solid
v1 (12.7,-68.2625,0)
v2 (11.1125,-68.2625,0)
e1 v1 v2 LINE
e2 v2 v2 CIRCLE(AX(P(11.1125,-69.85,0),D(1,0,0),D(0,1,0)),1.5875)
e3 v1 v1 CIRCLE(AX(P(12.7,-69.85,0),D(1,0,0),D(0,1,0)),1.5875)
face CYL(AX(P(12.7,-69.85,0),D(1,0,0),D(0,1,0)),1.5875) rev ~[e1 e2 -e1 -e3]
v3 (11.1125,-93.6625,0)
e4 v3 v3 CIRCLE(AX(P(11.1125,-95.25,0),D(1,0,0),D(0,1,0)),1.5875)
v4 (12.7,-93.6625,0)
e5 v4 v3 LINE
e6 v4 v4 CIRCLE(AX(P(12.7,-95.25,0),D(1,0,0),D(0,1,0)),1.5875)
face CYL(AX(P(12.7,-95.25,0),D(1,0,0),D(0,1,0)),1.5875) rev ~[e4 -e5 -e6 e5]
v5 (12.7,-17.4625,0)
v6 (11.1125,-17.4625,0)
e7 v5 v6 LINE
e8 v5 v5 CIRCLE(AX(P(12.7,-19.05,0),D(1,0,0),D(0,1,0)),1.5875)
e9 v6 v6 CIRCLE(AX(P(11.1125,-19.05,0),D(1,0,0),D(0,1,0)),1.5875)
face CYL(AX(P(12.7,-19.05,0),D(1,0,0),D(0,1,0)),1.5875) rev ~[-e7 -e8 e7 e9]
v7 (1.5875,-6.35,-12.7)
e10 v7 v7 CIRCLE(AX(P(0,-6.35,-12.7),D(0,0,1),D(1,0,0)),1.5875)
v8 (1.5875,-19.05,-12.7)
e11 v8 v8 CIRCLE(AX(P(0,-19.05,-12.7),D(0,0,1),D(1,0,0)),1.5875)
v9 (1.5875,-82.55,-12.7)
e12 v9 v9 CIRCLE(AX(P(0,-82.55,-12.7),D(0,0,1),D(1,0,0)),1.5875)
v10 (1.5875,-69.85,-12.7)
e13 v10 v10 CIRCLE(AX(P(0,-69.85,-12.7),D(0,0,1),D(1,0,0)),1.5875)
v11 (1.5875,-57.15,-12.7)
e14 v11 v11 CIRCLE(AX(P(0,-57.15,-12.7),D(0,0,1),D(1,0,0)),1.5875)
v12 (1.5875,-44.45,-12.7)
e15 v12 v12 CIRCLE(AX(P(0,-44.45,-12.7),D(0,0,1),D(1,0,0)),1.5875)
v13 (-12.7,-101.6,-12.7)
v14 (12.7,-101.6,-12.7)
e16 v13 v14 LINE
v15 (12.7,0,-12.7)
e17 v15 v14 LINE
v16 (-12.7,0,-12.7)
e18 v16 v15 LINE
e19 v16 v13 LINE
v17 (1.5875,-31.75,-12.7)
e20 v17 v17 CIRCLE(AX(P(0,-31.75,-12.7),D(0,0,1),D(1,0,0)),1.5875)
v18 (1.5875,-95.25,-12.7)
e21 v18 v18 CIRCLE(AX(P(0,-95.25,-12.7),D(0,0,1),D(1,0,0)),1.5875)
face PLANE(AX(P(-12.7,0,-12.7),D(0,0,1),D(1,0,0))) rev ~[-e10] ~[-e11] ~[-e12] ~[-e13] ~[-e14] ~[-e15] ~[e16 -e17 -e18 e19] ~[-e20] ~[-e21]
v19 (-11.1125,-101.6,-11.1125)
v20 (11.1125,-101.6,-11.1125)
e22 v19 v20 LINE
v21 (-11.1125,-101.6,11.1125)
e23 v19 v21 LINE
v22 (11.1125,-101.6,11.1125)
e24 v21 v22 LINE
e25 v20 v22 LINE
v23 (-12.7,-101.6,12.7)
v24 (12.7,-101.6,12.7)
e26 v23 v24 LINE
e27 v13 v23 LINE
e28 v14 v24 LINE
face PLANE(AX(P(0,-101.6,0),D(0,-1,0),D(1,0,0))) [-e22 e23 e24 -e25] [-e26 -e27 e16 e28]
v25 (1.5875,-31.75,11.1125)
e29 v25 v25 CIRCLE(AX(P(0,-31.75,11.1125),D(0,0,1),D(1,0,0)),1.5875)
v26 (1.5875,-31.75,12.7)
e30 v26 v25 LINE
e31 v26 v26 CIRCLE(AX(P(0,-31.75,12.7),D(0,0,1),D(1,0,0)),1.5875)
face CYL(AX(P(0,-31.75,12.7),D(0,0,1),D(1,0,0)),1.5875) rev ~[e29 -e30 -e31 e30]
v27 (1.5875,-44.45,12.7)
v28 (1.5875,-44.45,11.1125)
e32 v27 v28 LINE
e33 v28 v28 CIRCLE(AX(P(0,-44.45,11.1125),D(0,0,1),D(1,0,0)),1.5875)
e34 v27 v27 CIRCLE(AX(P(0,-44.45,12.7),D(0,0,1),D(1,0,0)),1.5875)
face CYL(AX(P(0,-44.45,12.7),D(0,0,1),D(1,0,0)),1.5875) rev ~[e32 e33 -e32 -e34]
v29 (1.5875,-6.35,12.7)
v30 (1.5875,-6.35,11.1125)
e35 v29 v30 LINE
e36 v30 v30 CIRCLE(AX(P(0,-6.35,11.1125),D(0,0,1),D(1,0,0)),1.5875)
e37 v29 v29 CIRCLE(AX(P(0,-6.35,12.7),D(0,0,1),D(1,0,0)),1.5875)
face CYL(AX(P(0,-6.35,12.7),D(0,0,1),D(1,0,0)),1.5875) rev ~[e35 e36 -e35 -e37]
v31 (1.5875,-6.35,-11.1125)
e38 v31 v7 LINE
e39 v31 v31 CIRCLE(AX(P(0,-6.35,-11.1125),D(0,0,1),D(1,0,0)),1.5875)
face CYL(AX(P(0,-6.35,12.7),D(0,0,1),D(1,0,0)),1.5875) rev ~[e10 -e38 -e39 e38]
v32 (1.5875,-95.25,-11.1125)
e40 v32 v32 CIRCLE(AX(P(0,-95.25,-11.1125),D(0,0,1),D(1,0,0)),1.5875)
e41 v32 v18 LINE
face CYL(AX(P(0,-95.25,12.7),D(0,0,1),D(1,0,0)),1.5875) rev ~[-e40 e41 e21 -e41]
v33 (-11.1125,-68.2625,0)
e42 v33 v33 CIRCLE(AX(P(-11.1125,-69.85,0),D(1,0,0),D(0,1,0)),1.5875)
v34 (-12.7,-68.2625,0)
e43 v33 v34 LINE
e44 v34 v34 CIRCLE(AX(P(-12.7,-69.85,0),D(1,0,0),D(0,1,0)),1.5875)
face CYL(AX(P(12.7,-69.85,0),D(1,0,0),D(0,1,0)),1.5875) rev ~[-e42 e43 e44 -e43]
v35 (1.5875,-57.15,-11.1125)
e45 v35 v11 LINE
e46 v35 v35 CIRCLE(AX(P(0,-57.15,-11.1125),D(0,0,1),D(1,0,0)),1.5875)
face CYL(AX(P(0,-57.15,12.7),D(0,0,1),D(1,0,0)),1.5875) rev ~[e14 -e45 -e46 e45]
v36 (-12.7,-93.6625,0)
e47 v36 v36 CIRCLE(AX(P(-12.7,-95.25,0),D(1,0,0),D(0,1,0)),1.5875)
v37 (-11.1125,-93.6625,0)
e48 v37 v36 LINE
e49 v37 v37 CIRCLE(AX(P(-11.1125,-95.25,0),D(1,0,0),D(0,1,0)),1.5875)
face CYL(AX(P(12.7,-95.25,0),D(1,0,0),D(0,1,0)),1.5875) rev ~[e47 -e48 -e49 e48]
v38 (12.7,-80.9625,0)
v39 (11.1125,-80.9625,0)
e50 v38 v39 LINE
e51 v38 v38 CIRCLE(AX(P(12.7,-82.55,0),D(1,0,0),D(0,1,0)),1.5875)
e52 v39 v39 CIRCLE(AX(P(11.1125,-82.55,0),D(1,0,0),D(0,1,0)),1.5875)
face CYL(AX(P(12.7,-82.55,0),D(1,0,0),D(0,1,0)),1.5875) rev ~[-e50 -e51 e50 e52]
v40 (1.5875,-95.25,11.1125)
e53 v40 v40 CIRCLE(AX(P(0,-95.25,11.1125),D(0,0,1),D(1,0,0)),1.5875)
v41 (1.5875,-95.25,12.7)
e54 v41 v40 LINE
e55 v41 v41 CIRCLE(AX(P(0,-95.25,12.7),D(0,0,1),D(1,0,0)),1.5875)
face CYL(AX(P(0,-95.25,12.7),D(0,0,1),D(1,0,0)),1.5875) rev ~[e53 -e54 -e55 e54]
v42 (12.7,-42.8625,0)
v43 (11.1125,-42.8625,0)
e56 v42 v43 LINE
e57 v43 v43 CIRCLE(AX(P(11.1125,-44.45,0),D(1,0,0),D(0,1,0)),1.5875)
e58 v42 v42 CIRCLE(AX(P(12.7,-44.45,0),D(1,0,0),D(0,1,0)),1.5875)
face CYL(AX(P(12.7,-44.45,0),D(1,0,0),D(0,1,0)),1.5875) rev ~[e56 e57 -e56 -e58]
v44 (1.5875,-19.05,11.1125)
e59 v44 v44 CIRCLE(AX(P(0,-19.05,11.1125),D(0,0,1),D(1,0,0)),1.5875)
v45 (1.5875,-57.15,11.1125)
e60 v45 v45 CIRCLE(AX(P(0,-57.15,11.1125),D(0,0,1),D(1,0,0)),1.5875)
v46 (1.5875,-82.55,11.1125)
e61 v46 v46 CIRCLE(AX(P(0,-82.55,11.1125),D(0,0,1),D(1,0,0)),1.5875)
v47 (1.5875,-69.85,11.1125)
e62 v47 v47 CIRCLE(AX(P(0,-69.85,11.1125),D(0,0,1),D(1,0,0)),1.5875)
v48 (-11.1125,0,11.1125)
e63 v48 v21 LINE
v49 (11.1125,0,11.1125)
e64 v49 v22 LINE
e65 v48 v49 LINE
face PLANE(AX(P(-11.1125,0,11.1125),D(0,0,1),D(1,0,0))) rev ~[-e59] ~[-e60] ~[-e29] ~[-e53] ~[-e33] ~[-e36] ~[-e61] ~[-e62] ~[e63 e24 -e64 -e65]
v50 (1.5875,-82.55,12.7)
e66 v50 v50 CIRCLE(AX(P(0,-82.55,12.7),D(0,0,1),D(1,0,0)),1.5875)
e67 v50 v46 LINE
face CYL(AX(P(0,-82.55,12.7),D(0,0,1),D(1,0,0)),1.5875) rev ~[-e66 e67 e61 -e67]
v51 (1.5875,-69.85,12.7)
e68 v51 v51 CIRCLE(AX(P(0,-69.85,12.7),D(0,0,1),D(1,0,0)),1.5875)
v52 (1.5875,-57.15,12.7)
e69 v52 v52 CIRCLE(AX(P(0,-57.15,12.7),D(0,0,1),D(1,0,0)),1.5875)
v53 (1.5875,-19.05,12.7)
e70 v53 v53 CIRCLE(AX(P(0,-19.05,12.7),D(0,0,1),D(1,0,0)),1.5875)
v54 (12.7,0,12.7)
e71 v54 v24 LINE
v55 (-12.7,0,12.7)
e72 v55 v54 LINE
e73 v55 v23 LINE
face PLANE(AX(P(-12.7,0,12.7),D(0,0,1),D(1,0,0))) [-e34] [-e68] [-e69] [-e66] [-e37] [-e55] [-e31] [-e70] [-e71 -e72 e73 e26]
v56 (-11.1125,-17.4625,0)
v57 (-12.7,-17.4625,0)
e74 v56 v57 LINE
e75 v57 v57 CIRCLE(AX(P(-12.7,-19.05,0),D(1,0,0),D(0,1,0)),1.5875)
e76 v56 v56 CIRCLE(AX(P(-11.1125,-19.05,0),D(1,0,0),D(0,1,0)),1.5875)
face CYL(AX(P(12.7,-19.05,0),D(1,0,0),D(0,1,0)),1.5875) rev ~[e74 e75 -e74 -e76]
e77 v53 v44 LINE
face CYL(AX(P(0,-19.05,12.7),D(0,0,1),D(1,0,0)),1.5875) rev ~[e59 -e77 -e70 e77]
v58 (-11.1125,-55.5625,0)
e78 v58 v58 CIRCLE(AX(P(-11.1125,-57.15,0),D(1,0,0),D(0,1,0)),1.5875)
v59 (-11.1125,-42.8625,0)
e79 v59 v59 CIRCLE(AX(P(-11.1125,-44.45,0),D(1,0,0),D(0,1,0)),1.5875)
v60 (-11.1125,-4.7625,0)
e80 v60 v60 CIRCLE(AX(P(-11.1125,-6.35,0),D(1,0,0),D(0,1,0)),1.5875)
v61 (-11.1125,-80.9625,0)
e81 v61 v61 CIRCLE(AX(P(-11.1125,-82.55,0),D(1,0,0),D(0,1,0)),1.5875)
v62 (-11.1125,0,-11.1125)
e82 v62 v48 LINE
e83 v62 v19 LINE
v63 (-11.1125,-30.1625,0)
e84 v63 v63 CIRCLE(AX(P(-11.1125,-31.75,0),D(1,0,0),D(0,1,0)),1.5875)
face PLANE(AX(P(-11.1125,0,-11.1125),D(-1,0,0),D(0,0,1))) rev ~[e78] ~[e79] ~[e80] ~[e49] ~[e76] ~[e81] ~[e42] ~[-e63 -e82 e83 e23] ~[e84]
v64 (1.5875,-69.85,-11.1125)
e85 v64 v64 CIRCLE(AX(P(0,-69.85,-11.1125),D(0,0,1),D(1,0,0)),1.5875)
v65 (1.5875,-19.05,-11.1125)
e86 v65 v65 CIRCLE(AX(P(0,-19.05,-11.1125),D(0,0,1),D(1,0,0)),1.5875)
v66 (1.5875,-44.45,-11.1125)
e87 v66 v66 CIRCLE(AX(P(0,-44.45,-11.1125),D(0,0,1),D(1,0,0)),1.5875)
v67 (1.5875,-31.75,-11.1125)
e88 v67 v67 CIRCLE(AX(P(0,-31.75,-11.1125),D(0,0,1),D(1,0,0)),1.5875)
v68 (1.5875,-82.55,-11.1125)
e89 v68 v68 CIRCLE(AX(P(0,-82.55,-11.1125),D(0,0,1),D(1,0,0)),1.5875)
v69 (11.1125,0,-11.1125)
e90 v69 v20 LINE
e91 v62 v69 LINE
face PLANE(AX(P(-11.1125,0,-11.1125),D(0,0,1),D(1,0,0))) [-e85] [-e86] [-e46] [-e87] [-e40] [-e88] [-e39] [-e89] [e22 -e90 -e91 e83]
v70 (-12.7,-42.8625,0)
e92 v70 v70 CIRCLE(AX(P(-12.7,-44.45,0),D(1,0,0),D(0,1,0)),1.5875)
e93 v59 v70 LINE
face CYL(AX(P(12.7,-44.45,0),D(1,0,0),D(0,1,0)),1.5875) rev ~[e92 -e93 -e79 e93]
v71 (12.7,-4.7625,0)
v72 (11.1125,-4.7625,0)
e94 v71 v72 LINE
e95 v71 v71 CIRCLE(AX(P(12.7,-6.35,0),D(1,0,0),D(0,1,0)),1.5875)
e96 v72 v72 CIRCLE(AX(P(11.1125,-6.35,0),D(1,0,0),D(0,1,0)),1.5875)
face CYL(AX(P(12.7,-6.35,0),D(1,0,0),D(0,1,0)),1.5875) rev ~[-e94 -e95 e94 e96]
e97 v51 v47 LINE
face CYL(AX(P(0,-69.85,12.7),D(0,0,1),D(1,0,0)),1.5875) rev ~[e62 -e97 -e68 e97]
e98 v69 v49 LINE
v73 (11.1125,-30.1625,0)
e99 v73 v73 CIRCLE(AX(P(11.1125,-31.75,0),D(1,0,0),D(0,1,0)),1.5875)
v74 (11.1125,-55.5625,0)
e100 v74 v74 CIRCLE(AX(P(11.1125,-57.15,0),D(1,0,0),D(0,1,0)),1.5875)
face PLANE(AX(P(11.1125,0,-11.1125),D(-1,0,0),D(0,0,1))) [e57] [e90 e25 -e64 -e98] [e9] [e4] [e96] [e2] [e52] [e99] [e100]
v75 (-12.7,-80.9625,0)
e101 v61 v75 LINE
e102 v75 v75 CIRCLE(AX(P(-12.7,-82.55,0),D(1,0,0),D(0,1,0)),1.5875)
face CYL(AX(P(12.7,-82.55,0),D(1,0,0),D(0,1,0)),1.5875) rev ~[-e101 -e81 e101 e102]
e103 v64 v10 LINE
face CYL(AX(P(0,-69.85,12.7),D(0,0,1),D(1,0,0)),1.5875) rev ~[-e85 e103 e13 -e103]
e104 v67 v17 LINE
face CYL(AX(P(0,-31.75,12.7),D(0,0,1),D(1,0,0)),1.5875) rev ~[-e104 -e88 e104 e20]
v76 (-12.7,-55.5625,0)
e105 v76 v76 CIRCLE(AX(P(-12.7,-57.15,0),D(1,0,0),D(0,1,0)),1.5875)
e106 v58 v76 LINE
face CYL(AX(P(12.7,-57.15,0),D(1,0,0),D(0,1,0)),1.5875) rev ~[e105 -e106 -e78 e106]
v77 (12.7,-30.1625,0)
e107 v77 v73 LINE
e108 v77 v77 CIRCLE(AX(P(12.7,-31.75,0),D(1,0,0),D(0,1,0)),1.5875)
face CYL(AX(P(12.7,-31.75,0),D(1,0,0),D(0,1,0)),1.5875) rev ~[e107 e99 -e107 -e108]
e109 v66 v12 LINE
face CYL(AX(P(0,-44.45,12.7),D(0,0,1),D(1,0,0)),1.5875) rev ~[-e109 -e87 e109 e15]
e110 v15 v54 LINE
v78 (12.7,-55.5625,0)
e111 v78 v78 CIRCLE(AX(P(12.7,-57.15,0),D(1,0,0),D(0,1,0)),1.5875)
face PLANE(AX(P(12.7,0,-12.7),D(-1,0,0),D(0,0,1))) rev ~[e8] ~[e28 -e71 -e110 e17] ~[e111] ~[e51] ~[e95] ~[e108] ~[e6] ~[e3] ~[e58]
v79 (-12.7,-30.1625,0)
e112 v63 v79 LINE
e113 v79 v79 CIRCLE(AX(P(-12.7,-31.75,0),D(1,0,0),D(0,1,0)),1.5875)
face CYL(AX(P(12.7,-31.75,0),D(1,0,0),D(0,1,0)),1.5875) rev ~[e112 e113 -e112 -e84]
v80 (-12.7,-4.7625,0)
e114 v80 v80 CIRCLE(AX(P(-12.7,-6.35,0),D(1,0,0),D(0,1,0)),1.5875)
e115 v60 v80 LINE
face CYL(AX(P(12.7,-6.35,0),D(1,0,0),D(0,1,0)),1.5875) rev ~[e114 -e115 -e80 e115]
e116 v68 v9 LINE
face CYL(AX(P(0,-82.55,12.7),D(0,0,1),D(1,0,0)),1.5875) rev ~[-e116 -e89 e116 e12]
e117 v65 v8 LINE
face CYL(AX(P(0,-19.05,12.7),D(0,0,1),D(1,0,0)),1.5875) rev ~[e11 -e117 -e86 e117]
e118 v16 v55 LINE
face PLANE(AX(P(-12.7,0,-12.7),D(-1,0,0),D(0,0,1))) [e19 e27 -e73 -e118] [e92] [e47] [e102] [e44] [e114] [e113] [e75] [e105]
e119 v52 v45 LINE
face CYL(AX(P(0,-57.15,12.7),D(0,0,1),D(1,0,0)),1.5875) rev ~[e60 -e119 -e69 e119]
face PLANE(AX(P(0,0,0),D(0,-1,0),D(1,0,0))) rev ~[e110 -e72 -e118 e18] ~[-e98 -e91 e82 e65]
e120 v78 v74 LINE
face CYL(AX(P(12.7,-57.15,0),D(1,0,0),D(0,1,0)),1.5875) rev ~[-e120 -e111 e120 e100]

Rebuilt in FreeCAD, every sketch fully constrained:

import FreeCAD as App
import Part
import Sketcher

V = App.Vector
Q = App.Units.Quantity

doc = App.newDocument("Part")
params = doc.addObject("Spreadsheet::Sheet", "Params")
for row, (alias, value) in enumerate([
    ("sketch1_width", "1 in"),
    ("sketch1_width2", "0.875 in"),
    ("pad1_length", "4 in"),
    ("sketch2_diameter", "0.125 in"),
    ("pocket1_length", "1 in"),
    ("sketch3_diameter", "0.125 in"),
    ("pocket2_length", "1 in"),
], start=1):
    params.set(f"A{row}", alias)
    params.set(f"B{row}", "=" + value)
    params.setAlias(f"B{row}", alias)

body = doc.addObject("PartDesign::Body", "Body")

# Sketch on XZ plane
sketch1 = doc.addObject("Sketcher::SketchObject", "Sketch")
body.addObject(sketch1)
sketch1.AttachmentSupport = (doc.XZ_Plane, [""])
sketch1.MapMode = "FlatFace"
sketch1.addGeometry(Part.LineSegment(V(-12.7, 12.7, 0), V(-12.7, -12.7, 0)), False)
sketch1.addGeometry(Part.LineSegment(V(-12.7, -12.7, 0), V(12.7, -12.7, 0)), False)
sketch1.addGeometry(Part.LineSegment(V(12.7, -12.7, 0), V(12.7, 12.7, 0)), False)
sketch1.addGeometry(Part.LineSegment(V(12.7, 12.7, 0), V(-12.7, 12.7, 0)), False)
sketch1.addGeometry(Part.LineSegment(V(11.1125, -11.1125, 0), V(-11.1125, -11.1125, 0)), False)
sketch1.addGeometry(Part.LineSegment(V(-11.1125, -11.1125, 0), V(-11.1125, 11.1125, 0)), False)
sketch1.addGeometry(Part.LineSegment(V(-11.1125, 11.1125, 0), V(11.1125, 11.1125, 0)), False)
sketch1.addGeometry(Part.LineSegment(V(11.1125, 11.1125, 0), V(11.1125, -11.1125, 0)), False)
sketch1.addConstraint(Sketcher.Constraint("Coincident", 0, 2, 1, 1))
sketch1.addConstraint(Sketcher.Constraint("Coincident", 1, 2, 2, 1))
sketch1.addConstraint(Sketcher.Constraint("Coincident", 2, 2, 3, 1))
sketch1.addConstraint(Sketcher.Constraint("Coincident", 3, 2, 0, 1))
sketch1.addConstraint(Sketcher.Constraint("Coincident", 4, 2, 5, 1))
sketch1.addConstraint(Sketcher.Constraint("Coincident", 5, 2, 6, 1))
sketch1.addConstraint(Sketcher.Constraint("Coincident", 6, 2, 7, 1))
sketch1.addConstraint(Sketcher.Constraint("Coincident", 7, 2, 4, 1))
sketch1.addConstraint(Sketcher.Constraint("Vertical", 0))
sketch1.addConstraint(Sketcher.Constraint("Horizontal", 1))
sketch1.addConstraint(Sketcher.Constraint("Vertical", 2))
sketch1.addConstraint(Sketcher.Constraint("Horizontal", 3))
sketch1.addConstraint(Sketcher.Constraint("Horizontal", 4))
sketch1.addConstraint(Sketcher.Constraint("Vertical", 5))
sketch1.addConstraint(Sketcher.Constraint("Horizontal", 6))
sketch1.addConstraint(Sketcher.Constraint("Vertical", 7))
sketch1.addConstraint(Sketcher.Constraint("Symmetric", 0, 2, 2, 2, -1, 1))
sketch1.addConstraint(Sketcher.Constraint("Symmetric", 4, 2, 6, 2, -1, 1))
sketch1.addConstraint(Sketcher.Constraint("Equal", 3, 0))
sketch1.addConstraint(Sketcher.Constraint("Equal", 6, 5))
sketch1.addConstraint(Sketcher.Constraint("DistanceX", 1, 1, 1, 2, Q("1 in")))
sketch1.addConstraint(Sketcher.Constraint("DistanceX", 4, 2, 4, 1, Q("0.875 in")))
sketch1.setExpression("Constraints[20]", "Params.sketch1_width")
sketch1.setExpression("Constraints[21]", "Params.sketch1_width2")
pad1 = doc.addObject("PartDesign::Pad", "Pad")
body.addObject(pad1)
pad1.Profile = sketch1
pad1.setExpression("Length", "Params.pad1_length")

# Sketch on XY plane
sketch2 = doc.addObject("Sketcher::SketchObject", "Sketch001")
body.addObject(sketch2)
sketch2.AttachmentSupport = (doc.XY_Plane, [""])
sketch2.MapMode = "FlatFace"
sketch2.AttachmentOffset = App.Placement(V(0, 0, 0.5 * 25.4), App.Rotation())
sketch2.addGeometry(Part.Circle(V(0, -6.35, 0), V(0, 0, 1), 1.5875), False)
sketch2.addGeometry(Part.Circle(V(0, -19.05, 0), V(0, 0, 1), 1.5875), False)
sketch2.addGeometry(Part.Circle(V(0, -31.75, 0), V(0, 0, 1), 1.5875), False)
sketch2.addGeometry(Part.Circle(V(0, -44.45, 0), V(0, 0, 1), 1.5875), False)
sketch2.addGeometry(Part.Circle(V(0, -57.15, 0), V(0, 0, 1), 1.5875), False)
sketch2.addGeometry(Part.Circle(V(0, -69.85, 0), V(0, 0, 1), 1.5875), False)
sketch2.addGeometry(Part.Circle(V(0, -82.55, 0), V(0, 0, 1), 1.5875), False)
sketch2.addGeometry(Part.Circle(V(0, -95.25, 0), V(0, 0, 1), 1.5875), False)
sketch2.addConstraint(Sketcher.Constraint("Equal", 0, 1))
sketch2.addConstraint(Sketcher.Constraint("Equal", 1, 2))
sketch2.addConstraint(Sketcher.Constraint("Equal", 2, 3))
sketch2.addConstraint(Sketcher.Constraint("Equal", 3, 4))
sketch2.addConstraint(Sketcher.Constraint("Equal", 4, 5))
sketch2.addConstraint(Sketcher.Constraint("Equal", 5, 6))
sketch2.addConstraint(Sketcher.Constraint("Equal", 6, 7))
sketch2.addConstraint(Sketcher.Constraint("PointOnObject", 0, 3, -2))
sketch2.addConstraint(Sketcher.Constraint("PointOnObject", 1, 3, -2))
sketch2.addConstraint(Sketcher.Constraint("PointOnObject", 2, 3, -2))
sketch2.addConstraint(Sketcher.Constraint("PointOnObject", 3, 3, -2))
sketch2.addConstraint(Sketcher.Constraint("PointOnObject", 4, 3, -2))
sketch2.addConstraint(Sketcher.Constraint("PointOnObject", 5, 3, -2))
sketch2.addConstraint(Sketcher.Constraint("PointOnObject", 6, 3, -2))
sketch2.addConstraint(Sketcher.Constraint("PointOnObject", 7, 3, -2))
sketch2.addConstraint(Sketcher.Constraint("Diameter", 0, Q("0.125 in")))
sketch2.addConstraint(Sketcher.Constraint("DistanceY", 2, 3, 0, 3, Q("1 in")))
sketch2.addConstraint(Sketcher.Constraint("DistanceY", 3, 3, 1, 3, Q("1 in")))
sketch2.addConstraint(Sketcher.Constraint("DistanceY", 4, 3, 2, 3, Q("1 in")))
sketch2.addConstraint(Sketcher.Constraint("DistanceY", 5, 3, 3, 3, Q("1 in")))
sketch2.addConstraint(Sketcher.Constraint("DistanceY", 6, 3, 4, 3, Q("1 in")))
sketch2.addConstraint(Sketcher.Constraint("DistanceY", 7, 3, 5, 3, Q("1 in")))
sketch2.addConstraint(Sketcher.Constraint("DistanceY", 1, 3, 0, 3, Q("0.5 in")))
sketch2.addConstraint(Sketcher.Constraint("DistanceY", 0, 3, -1, 1, Q("0.25 in")))
sketch2.setExpression("Constraints[15]", "Params.sketch2_diameter")
pocket1 = doc.addObject("PartDesign::Pocket", "Pocket")
body.addObject(pocket1)
pocket1.Profile = sketch2
pocket1.setExpression("Length", "Params.pocket1_length")

# Sketch on YZ plane
sketch3 = doc.addObject("Sketcher::SketchObject", "Sketch002")
body.addObject(sketch3)
sketch3.AttachmentSupport = (doc.YZ_Plane, [""])
sketch3.MapMode = "FlatFace"
sketch3.AttachmentOffset = App.Placement(V(0, 0, 0.5 * 25.4), App.Rotation())
sketch3.addGeometry(Part.Circle(V(-6.35, 0, 0), V(0, 0, 1), 1.5875), False)
sketch3.addGeometry(Part.Circle(V(-19.05, 0, 0), V(0, 0, 1), 1.5875), False)
sketch3.addGeometry(Part.Circle(V(-31.75, 0, 0), V(0, 0, 1), 1.5875), False)
sketch3.addGeometry(Part.Circle(V(-44.45, 0, 0), V(0, 0, 1), 1.5875), False)
sketch3.addGeometry(Part.Circle(V(-57.15, 0, 0), V(0, 0, 1), 1.5875), False)
sketch3.addGeometry(Part.Circle(V(-69.85, 0, 0), V(0, 0, 1), 1.5875), False)
sketch3.addGeometry(Part.Circle(V(-82.55, 0, 0), V(0, 0, 1), 1.5875), False)
sketch3.addGeometry(Part.Circle(V(-95.25, 0, 0), V(0, 0, 1), 1.5875), False)
sketch3.addConstraint(Sketcher.Constraint("Equal", 0, 1))
sketch3.addConstraint(Sketcher.Constraint("Equal", 1, 2))
sketch3.addConstraint(Sketcher.Constraint("Equal", 2, 3))
sketch3.addConstraint(Sketcher.Constraint("Equal", 3, 4))
sketch3.addConstraint(Sketcher.Constraint("Equal", 4, 5))
sketch3.addConstraint(Sketcher.Constraint("Equal", 5, 6))
sketch3.addConstraint(Sketcher.Constraint("Equal", 6, 7))
sketch3.addConstraint(Sketcher.Constraint("PointOnObject", 0, 3, -1))
sketch3.addConstraint(Sketcher.Constraint("PointOnObject", 1, 3, -1))
sketch3.addConstraint(Sketcher.Constraint("PointOnObject", 2, 3, -1))
sketch3.addConstraint(Sketcher.Constraint("PointOnObject", 3, 3, -1))
sketch3.addConstraint(Sketcher.Constraint("PointOnObject", 4, 3, -1))
sketch3.addConstraint(Sketcher.Constraint("PointOnObject", 5, 3, -1))
sketch3.addConstraint(Sketcher.Constraint("PointOnObject", 6, 3, -1))
sketch3.addConstraint(Sketcher.Constraint("PointOnObject", 7, 3, -1))
sketch3.addConstraint(Sketcher.Constraint("Diameter", 0, Q("0.125 in")))
sketch3.addConstraint(Sketcher.Constraint("DistanceX", 2, 3, 0, 3, Q("1 in")))
sketch3.addConstraint(Sketcher.Constraint("DistanceX", 3, 3, 1, 3, Q("1 in")))
sketch3.addConstraint(Sketcher.Constraint("DistanceX", 4, 3, 2, 3, Q("1 in")))
sketch3.addConstraint(Sketcher.Constraint("DistanceX", 5, 3, 3, 3, Q("1 in")))
sketch3.addConstraint(Sketcher.Constraint("DistanceX", 6, 3, 4, 3, Q("1 in")))
sketch3.addConstraint(Sketcher.Constraint("DistanceX", 7, 3, 5, 3, Q("1 in")))
sketch3.addConstraint(Sketcher.Constraint("DistanceX", 1, 3, 0, 3, Q("0.5 in")))
sketch3.addConstraint(Sketcher.Constraint("DistanceX", 0, 3, -1, 1, Q("0.25 in")))
sketch3.setExpression("Constraints[15]", "Params.sketch3_diameter")
pocket2 = doc.addObject("PartDesign::Pocket", "Pocket001")
body.addObject(pocket2)
pocket2.Profile = sketch3
pocket2.setExpression("Length", "Params.pocket2_length")

doc.recompute()
